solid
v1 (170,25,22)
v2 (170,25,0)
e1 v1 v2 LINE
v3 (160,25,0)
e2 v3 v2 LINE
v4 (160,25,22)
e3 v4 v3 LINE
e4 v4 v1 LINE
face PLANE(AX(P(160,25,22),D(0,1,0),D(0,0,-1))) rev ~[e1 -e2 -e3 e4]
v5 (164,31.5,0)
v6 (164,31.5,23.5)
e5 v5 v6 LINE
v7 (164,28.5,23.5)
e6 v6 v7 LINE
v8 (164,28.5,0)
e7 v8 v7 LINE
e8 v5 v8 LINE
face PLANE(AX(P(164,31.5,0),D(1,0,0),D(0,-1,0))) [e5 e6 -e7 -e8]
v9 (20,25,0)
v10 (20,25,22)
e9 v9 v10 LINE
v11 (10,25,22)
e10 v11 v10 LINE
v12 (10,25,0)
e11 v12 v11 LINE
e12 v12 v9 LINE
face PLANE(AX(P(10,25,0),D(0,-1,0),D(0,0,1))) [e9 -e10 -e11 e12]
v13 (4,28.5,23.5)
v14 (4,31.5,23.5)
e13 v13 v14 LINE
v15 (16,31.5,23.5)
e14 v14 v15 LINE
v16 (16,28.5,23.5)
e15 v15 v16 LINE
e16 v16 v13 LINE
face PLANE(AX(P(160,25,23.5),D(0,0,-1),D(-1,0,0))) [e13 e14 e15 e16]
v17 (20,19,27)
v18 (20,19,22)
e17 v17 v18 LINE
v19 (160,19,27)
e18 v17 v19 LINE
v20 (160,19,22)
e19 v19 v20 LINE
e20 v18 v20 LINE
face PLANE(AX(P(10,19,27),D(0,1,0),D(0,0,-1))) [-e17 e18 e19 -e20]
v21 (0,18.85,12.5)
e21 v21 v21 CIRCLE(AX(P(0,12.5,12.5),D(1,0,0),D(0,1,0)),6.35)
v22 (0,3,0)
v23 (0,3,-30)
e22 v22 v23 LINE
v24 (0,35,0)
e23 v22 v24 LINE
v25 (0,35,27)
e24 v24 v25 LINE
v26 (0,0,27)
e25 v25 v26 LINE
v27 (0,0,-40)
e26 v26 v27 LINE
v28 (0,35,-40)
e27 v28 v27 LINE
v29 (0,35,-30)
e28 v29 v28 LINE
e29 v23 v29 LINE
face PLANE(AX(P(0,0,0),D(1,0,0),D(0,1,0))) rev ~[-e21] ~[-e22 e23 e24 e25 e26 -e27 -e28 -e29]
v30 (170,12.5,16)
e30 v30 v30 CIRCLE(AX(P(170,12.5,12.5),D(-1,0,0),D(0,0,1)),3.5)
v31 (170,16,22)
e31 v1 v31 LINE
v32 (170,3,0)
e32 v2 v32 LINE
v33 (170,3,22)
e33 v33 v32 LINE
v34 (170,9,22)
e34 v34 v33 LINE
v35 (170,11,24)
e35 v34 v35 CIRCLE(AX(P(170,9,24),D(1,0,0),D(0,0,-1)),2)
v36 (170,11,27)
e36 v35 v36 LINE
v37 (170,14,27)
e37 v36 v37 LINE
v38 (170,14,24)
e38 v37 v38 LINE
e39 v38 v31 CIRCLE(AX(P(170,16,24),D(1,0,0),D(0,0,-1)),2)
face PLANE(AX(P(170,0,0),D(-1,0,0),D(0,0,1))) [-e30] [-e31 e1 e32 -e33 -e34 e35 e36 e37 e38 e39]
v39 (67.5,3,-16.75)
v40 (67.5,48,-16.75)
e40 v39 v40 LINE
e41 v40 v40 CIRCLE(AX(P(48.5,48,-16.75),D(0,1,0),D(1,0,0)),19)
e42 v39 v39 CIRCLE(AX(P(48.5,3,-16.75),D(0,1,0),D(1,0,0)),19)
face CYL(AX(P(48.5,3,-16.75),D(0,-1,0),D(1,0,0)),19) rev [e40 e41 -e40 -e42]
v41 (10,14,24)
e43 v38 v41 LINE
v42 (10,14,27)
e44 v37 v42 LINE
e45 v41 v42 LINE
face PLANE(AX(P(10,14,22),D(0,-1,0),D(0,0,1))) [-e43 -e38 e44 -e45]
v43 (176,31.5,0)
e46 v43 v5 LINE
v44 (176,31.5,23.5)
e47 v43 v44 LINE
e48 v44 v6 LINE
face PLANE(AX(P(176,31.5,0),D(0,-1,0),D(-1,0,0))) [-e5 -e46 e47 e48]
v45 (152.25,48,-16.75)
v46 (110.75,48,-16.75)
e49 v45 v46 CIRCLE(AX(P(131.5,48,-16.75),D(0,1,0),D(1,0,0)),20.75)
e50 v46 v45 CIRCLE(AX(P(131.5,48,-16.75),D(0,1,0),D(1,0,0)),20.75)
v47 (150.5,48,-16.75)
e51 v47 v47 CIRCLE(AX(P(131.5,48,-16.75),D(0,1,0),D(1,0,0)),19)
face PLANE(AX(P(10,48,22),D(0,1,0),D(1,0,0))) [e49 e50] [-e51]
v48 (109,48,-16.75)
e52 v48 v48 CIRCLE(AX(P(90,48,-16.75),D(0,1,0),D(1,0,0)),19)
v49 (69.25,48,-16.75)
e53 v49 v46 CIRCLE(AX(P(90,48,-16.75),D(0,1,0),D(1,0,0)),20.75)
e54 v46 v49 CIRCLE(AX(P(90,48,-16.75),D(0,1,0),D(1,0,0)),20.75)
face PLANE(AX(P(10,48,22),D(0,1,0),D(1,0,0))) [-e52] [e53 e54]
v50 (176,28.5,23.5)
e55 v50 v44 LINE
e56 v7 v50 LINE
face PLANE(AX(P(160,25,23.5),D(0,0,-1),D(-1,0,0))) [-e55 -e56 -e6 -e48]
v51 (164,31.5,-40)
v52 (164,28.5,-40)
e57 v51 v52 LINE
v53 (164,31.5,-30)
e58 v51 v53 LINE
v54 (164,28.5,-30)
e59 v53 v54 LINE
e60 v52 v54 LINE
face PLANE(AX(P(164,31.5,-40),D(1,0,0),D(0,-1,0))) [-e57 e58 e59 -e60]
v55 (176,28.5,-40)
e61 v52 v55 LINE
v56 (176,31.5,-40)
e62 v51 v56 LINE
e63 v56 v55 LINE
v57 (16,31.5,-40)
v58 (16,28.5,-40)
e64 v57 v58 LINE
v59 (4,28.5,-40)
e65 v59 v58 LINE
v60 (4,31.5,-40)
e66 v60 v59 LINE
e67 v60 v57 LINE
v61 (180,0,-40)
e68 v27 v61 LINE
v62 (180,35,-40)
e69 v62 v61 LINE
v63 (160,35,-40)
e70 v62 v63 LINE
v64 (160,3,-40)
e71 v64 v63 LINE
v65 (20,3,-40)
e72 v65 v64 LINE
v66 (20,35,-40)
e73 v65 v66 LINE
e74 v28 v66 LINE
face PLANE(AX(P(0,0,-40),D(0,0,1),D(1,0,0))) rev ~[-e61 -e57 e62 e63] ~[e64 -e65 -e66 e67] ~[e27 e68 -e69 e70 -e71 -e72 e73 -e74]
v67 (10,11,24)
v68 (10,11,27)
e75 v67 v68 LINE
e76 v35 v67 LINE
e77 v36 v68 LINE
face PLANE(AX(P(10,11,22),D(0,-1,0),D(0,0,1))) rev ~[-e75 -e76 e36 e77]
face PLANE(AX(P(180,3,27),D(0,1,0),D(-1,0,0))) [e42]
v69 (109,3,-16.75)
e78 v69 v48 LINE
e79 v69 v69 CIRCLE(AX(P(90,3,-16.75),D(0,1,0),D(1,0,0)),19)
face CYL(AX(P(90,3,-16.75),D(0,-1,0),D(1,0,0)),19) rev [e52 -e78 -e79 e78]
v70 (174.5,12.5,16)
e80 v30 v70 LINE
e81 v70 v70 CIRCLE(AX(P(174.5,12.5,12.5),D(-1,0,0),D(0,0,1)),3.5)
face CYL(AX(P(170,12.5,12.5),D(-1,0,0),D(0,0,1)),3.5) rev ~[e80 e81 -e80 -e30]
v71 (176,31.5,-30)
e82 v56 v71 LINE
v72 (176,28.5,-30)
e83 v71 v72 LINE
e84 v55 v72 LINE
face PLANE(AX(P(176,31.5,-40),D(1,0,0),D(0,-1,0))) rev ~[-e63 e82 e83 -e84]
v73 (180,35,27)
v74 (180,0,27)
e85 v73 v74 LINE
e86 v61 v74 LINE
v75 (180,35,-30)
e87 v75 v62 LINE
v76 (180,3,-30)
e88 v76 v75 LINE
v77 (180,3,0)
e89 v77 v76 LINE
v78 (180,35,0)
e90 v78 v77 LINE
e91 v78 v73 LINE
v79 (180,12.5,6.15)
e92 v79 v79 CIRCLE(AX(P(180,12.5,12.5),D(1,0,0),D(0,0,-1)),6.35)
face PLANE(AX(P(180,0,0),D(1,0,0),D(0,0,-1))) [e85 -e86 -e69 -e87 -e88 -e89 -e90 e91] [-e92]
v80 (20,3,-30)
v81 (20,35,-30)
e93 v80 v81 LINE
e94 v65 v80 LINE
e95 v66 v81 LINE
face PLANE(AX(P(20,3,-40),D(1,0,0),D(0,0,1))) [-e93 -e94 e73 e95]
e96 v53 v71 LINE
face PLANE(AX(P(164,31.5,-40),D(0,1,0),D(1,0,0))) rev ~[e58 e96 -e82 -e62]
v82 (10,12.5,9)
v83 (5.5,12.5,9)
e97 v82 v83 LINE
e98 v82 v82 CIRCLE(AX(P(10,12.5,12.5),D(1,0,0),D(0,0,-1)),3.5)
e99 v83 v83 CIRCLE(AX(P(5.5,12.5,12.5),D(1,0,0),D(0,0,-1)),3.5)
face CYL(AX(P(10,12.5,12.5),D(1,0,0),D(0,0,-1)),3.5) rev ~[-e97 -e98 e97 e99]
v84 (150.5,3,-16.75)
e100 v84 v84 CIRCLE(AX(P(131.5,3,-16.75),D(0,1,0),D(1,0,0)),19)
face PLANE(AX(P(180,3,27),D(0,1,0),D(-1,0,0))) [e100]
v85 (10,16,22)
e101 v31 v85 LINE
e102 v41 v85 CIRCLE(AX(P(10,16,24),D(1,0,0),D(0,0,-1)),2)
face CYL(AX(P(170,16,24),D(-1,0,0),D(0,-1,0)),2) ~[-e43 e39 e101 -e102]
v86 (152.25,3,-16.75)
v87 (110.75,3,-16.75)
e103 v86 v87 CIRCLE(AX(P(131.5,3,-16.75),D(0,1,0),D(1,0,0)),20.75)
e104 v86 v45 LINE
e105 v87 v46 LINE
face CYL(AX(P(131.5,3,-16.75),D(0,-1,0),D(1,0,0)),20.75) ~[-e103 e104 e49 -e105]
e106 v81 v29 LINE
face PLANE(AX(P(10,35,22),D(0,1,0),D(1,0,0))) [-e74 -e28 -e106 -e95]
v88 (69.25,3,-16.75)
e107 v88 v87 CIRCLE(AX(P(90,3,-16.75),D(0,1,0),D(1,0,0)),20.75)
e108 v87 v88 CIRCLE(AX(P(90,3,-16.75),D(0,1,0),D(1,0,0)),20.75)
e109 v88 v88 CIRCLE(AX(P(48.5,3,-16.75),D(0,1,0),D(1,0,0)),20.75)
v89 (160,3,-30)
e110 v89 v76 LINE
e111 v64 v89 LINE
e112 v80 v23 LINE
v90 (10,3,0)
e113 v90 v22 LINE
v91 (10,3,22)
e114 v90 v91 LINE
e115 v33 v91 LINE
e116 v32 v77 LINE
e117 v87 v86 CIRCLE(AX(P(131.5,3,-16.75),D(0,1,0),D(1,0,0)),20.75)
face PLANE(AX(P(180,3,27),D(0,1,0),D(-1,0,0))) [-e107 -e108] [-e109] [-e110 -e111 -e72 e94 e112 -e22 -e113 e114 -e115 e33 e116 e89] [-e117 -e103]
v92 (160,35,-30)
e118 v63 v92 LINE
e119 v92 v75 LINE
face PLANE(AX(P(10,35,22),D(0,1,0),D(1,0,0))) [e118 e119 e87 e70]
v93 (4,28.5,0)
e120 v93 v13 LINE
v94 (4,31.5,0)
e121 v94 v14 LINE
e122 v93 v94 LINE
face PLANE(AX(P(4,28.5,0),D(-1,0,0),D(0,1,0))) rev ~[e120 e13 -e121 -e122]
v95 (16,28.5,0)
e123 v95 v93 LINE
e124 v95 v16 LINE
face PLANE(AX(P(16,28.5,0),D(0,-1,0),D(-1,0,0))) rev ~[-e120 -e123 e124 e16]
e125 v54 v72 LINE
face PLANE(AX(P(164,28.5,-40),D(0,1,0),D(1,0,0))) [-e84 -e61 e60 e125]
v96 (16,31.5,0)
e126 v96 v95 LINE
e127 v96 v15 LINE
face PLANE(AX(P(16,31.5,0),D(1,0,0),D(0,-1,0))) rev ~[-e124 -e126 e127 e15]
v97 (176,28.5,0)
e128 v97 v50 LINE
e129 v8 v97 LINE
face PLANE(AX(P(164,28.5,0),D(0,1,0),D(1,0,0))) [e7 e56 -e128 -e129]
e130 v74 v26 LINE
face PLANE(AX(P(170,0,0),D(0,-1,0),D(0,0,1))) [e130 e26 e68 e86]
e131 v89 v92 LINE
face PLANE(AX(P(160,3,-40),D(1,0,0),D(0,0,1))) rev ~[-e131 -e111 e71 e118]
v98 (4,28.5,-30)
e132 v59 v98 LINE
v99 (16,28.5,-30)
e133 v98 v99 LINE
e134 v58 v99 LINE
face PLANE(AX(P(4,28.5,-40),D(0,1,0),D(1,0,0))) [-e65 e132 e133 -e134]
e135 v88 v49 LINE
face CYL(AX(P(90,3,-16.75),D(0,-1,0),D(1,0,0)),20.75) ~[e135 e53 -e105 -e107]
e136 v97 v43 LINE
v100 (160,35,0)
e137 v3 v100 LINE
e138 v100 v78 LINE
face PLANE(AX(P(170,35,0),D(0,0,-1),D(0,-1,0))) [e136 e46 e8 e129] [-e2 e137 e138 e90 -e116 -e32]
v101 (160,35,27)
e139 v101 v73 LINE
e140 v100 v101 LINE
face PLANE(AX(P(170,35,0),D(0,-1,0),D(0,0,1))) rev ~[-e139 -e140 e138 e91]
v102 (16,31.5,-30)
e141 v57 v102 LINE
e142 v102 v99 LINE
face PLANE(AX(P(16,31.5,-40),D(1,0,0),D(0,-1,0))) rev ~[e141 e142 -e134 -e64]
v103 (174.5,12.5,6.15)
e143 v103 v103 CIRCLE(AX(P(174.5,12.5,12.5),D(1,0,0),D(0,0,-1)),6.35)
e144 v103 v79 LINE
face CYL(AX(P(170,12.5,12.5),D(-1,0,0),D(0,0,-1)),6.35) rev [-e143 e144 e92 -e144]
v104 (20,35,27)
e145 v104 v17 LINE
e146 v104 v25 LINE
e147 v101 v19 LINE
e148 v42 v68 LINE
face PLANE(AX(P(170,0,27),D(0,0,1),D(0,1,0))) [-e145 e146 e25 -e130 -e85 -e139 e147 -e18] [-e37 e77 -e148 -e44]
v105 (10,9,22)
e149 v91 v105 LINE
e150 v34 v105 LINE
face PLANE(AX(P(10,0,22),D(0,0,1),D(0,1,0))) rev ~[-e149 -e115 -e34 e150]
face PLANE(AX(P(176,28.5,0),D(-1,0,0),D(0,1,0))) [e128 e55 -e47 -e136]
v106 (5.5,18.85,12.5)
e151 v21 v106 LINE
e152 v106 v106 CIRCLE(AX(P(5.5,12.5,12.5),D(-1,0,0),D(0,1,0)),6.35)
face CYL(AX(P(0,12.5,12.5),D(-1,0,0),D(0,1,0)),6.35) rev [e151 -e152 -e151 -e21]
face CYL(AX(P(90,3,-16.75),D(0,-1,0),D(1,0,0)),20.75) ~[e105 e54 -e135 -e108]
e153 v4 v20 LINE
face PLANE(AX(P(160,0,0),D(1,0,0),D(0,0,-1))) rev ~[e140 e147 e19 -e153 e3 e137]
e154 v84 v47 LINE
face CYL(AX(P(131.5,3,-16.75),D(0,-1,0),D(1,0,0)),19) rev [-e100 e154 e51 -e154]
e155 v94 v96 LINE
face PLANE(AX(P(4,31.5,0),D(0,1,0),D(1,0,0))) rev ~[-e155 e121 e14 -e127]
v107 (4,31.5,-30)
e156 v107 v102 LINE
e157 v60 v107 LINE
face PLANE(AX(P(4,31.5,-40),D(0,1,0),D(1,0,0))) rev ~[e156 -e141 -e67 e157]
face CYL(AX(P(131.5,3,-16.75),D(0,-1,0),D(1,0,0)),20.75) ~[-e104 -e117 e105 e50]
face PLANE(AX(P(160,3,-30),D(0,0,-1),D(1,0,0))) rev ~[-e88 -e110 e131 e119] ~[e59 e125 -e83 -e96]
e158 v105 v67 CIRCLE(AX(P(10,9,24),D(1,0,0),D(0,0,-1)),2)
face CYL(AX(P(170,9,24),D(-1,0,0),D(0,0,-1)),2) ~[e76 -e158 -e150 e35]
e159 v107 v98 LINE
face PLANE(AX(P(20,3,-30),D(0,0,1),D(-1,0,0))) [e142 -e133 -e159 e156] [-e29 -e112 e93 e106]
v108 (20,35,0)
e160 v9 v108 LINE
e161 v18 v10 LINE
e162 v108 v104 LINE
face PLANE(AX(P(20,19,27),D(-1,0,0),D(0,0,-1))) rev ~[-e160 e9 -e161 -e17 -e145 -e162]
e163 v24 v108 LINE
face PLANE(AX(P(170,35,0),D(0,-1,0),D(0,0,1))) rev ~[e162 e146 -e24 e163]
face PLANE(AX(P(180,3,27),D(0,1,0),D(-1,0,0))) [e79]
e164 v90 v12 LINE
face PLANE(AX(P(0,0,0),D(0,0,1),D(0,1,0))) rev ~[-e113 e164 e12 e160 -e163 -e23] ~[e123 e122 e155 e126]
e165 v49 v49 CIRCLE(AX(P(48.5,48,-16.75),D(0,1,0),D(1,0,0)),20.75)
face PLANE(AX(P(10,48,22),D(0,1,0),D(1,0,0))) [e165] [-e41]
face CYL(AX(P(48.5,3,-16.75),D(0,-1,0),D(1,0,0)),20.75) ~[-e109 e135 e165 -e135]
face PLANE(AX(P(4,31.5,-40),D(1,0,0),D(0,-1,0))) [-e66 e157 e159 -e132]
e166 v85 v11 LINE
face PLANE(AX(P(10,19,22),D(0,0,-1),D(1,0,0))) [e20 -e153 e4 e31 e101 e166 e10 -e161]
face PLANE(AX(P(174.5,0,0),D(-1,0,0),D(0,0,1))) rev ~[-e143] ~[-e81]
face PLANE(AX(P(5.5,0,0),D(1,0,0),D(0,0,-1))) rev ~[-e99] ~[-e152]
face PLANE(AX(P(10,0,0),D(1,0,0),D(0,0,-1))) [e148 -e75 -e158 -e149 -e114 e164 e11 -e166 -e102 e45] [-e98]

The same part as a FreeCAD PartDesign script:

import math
import FreeCAD as App
import Part
import Sketcher
from FreeCAD import Vector
Q = App.Units.Quantity


def edges_at(feature, points):
    """Names of the edges that pass closest to the given points."""
    edges = feature.Shape.Edges
    near = lambda p: min(range(len(edges)), key=lambda i: edges[i].distToShape(Part.Vertex(*p))[0])
    return sorted({f"Edge{near(p) + 1}" for p in points})


def add_polygon(sketch, points):
    """Adds a closed chain of lines whose ends are joined by coincident constraints."""
    first, n = sketch.GeometryCount, len(points)
    for a, b in zip(points, points[1:] + points[:1]):
        sketch.addGeometry(Part.LineSegment(App.Vector(*a, 0), App.Vector(*b, 0)), False)
    for i in range(n):
        sketch.addConstraint(Sketcher.Constraint("Coincident", first + i, 2, first + (i + 1) % n, 1))

doc = App.newDocument("Part")
params = doc.addObject("Spreadsheet::Sheet", "Params")
for row, (alias, value) in enumerate([
    ("sketch1_diameter", "12.7 mm"),
    ("sketch1_width", "35 mm"),
    ("sketch1_height", "27 mm"),
    ("pad1_length", "10 mm"),
    ("sketch2_width", "10 mm"),
    ("sketch2_height", "27 mm"),
    ("pad2_length", "10 mm"),
    ("sketch3_width", "5 mm"),
    ("sketch3_width2", "11 mm"),
    ("pad3_length", "150 mm"),
    ("sketch4_width", "10 mm"),
    ("sketch4_height", "5 mm"),
    ("pad4_length", "7.5 mm"),
    ("sketch5_width", "21 mm"),
    ("sketch5_width2", "11 mm"),
    ("sketch5_height", "5 mm"),
    ("sketch5_height2", "22 mm"),
    ("pad5_length", "10 mm"),
    ("sketch6_diameter", "12.7 mm"),
    ("sketch6_width", "35 mm"),
    ("sketch6_height", "27 mm"),
    ("pad6_length", "10 mm"),
    ("fillet_radius", "2 mm"),
    ("sketch7_width", "3 mm"),
    ("sketch7_height", "14 mm"),
    ("pad7_length", "140 mm"),
    ("sketch8_width", "12 mm"),
    ("sketch8_height", "3 mm"),
    ("pocket1_length", "23.5 mm"),
    ("sketch9_diameter", "7 mm"),
    ("sketch9_diameter2", "12.7 mm"),
    ("pad8_length", "4.5 mm"),
    ("sketch10_diameter", "7 mm"),
    ("sketch10_diameter2", "12.7 mm"),
    ("pad9_length", "4.5 mm"),
    ("sketch11_height", "3 mm"),
    ("sketch11_width", "180 mm"),
    ("pad10_length", "67 mm"),
    ("sketch12_diameter", "38 mm"),
    ("sketch12_diameter2", "40 mm"),
    ("pad11_length", "30 mm"),
    ("sketch13_height", "10 mm"),
    ("sketch13_width", "20 mm"),
    ("pad12_length", "32 mm"),
    ("sketch14_width", "12 mm"),
    ("sketch14_height", "3 mm"),
    ("pocket2_length", "10 mm"),
    ("pocket3_length", "30 mm"),
    ("sketch16_diameter", "38 mm"),
    ("sketch16_diameter2", "41.5 mm"),
    ("pad13_length", "45 mm"),
    ("sketch17_width", "140 mm"),
    ("sketch17_height", "14 mm"),
    ("pocket4_length", "5 mm"),
], start=1):
    params.set(f"A{row}", alias)
    params.set(f"B{row}", "=" + value)
    params.setAlias(f"B{row}", alias)

body = doc.addObject("PartDesign::Body", "Body")

sketch1 = body.newObject("Sketcher::SketchObject", "Sketch")
sketch1.AttachmentSupport = (doc.getObject("YZ_Plane"), [""])
sketch1.MapMode = "FlatFace"
add_polygon(sketch1, [(0, 27), (0, 0), (35, 0), (35, 27)])
sketch1.addGeometry(Part.Circle(Vector(12, 12, 0), Vector(0, 0, 1), 6), False)
sketch1.addConstraint(Sketcher.Constraint("Vertical", 0))
sketch1.addConstraint(Sketcher.Constraint("Horizontal", 1))
sketch1.addConstraint(Sketcher.Constraint("Vertical", 2))
sketch1.addConstraint(Sketcher.Constraint("Horizontal", 3))
sketch1.addConstraint(Sketcher.Constraint("Coincident", 0, 2, -1, 1))
sketch1.addConstraint(Sketcher.Constraint("Diameter", 4, Q("12.7 mm")))
sketch1.addConstraint(Sketcher.Constraint("DistanceX", 1, 1, 1, 2, Q("35 mm")))
sketch1.addConstraint(Sketcher.Constraint("DistanceY", 0, 2, 0, 1, Q("27 mm")))
sketch1.addConstraint(Sketcher.Constraint("DistanceX", -1, 1, 4, 3, Q("12.5 mm")))
sketch1.addConstraint(Sketcher.Constraint("DistanceY", -1, 1, 4, 3, Q("12.5 mm")))
sketch1.setExpression("Constraints[9]", "Params.sketch1_diameter")
sketch1.setExpression("Constraints[10]", "Params.sketch1_width")
sketch1.setExpression("Constraints[11]", "Params.sketch1_height")
pad1 = body.newObject("PartDesign::Pad", "Pad")
pad1.Profile = sketch1
pad1.setExpression("Length", "Params.pad1_length")

sketch2 = body.newObject("Sketcher::SketchObject", "Sketch001")
sketch2.AttachmentSupport = (doc.getObject("YZ_Plane"), [""])
sketch2.MapMode = "FlatFace"
sketch2.AttachmentOffset = App.Placement(Vector(0, 0, 10), App.Rotation())
add_polygon(sketch2, [(25, 0), (35, 0), (35, 27), (25, 27)])
sketch2.addConstraint(Sketcher.Constraint("Horizontal", 0))
sketch2.addConstraint(Sketcher.Constraint("Vertical", 1))
sketch2.addConstraint(Sketcher.Constraint("Horizontal", 2))
sketch2.addConstraint(Sketcher.Constraint("Vertical", 3))
sketch2.addConstraint(Sketcher.Constraint("PointOnObject", 0, 2, -1))
sketch2.addConstraint(Sketcher.Constraint("DistanceX", 0, 1, 0, 2, Q("10 mm")))
sketch2.addConstraint(Sketcher.Constraint("DistanceY", 1, 1, 1, 2, Q("27 mm")))
sketch2.addConstraint(Sketcher.Constraint("DistanceX", -1, 1, 0, 2, Q("35 mm")))
sketch2.setExpression("Constraints[9]", "Params.sketch2_width")
sketch2.setExpression("Constraints[10]", "Params.sketch2_height")
pad2 = body.newObject("PartDesign::Pad", "Pad001")
pad2.Profile = sketch2
pad2.setExpression("Length", "Params.pad2_length")

sketch3 = body.newObject("Sketcher::SketchObject", "Sketch002")
sketch3.AttachmentSupport = (doc.getObject("YZ_Plane"), [""])
sketch3.MapMode = "FlatFace"
sketch3.AttachmentOffset = App.Placement(Vector(0, 0, 10), App.Rotation())
add_polygon(sketch3, [(19, 22), (19, 27), (14, 27), (14, 22)])
add_polygon(sketch3, [(11, 22), (11, 27), (0, 27), (0, 22)])
sketch3.addConstraint(Sketcher.Constraint("Vertical", 0))
sketch3.addConstraint(Sketcher.Constraint("Horizontal", 1))
sketch3.addConstraint(Sketcher.Constraint("Vertical", 2))
sketch3.addConstraint(Sketcher.Constraint("Horizontal", 3))
sketch3.addConstraint(Sketcher.Constraint("Vertical", 4))
sketch3.addConstraint(Sketcher.Constraint("Horizontal", 5))
sketch3.addConstraint(Sketcher.Constraint("Vertical", 6))
sketch3.addConstraint(Sketcher.Constraint("Horizontal", 7))
sketch3.addConstraint(Sketcher.Constraint("PointOnObject", 5, 2, -2))
sketch3.addConstraint(Sketcher.Constraint("Horizontal", 1, 2, 4, 2))
sketch3.addConstraint(Sketcher.Constraint("Horizontal", 3, 2, 6, 2))
sketch3.addConstraint(Sketcher.Constraint("Equal", 3, 0))
sketch3.addConstraint(Sketcher.Constraint("DistanceX", 1, 2, 1, 1, Q("5 mm")))
sketch3.addConstraint(Sketcher.Constraint("DistanceX", 5, 2, 5, 1, Q("11 mm")))
sketch3.addConstraint(Sketcher.Constraint("DistanceX", -1, 1, 0, 2, Q("19 mm")))
sketch3.addConstraint(Sketcher.Constraint("DistanceY", -1, 1, 0, 2, Q("27 mm")))
sketch3.setExpression("Constraints[20]", "Params.sketch3_width")
sketch3.setExpression("Constraints[21]", "Params.sketch3_width2")
pad3 = body.newObject("PartDesign::Pad", "Pad002")
pad3.Profile = sketch3
pad3.setExpression("Length", "Params.pad3_length")

sketch4 = body.newObject("Sketcher::SketchObject", "Sketch003")
sketch4.AttachmentSupport = (doc.getObject("XZ_Plane"), [""])
sketch4.MapMode = "FlatFace"
sketch4.AttachmentOffset = App.Placement(Vector(0, 0, -19), App.Rotation())
add_polygon(sketch4, [(10, 22), (10, 27), (20, 27), (20, 22)])
sketch4.addConstraint(Sketcher.Constraint("Vertical", 0))
sketch4.addConstraint(Sketcher.Constraint("Horizontal", 1))
sketch4.addConstraint(Sketcher.Constraint("Vertical", 2))
sketch4.addConstraint(Sketcher.Constraint("Horizontal", 3))
sketch4.addConstraint(Sketcher.Constraint("DistanceX", 1, 1, 1, 2, Q("10 mm")))
sketch4.addConstraint(Sketcher.Constraint("DistanceX", -1, 1, 0, 2, Q("10 mm")))
sketch4.addConstraint(Sketcher.Constraint("DistanceY", 0, 1, 0, 2, Q("5 mm")))
sketch4.addConstraint(Sketcher.Constraint("DistanceY", -1, 1, 0, 2, Q("27 mm")))
sketch4.setExpression("Constraints[8]", "Params.sketch4_width")
sketch4.setExpression("Constraints[10]", "Params.sketch4_height")
pad4 = body.newObject("PartDesign::Pad", "Pad003")
pad4.Profile = sketch4
pad4.setExpression("Length", "Params.pad4_length")
pad4.Reversed = True

sketch5 = body.newObject("Sketcher::SketchObject", "Sketch004")
sketch5.AttachmentSupport = (doc.getObject("YZ_Plane"), [""])
sketch5.MapMode = "FlatFace"
sketch5.AttachmentOffset = App.Placement(Vector(0, 0, 160), App.Rotation())
add_polygon(sketch5, [(35, 27), (14, 27), (14, 22), (25, 22), (25, 0), (35, 0)])
add_polygon(sketch5, [(0, 22), (11, 22), (11, 27), (0, 27)])
sketch5.addConstraint(Sketcher.Constraint("Horizontal", 0))
sketch5.addConstraint(Sketcher.Constraint("Vertical", 1))
sketch5.addConstraint(Sketcher.Constraint("Horizontal", 2))
sketch5.addConstraint(Sketcher.Constraint("Vertical", 3))
sketch5.addConstraint(Sketcher.Constraint("Horizontal", 4))
sketch5.addConstraint(Sketcher.Constraint("Vertical", 5))
sketch5.addConstraint(Sketcher.Constraint("Horizontal", 6))
sketch5.addConstraint(Sketcher.Constraint("Vertical", 7))
sketch5.addConstraint(Sketcher.Constraint("Horizontal", 8))
sketch5.addConstraint(Sketcher.Constraint("Vertical", 9))
sketch5.addConstraint(Sketcher.Constraint("PointOnObject", 3, 2, -1))
sketch5.addConstraint(Sketcher.Constraint("PointOnObject", 8, 2, -2))
sketch5.addConstraint(Sketcher.Constraint("Horizontal", 2, 2, 6, 2))
sketch5.addConstraint(Sketcher.Constraint("Horizontal", 5, 2, 7, 2))
sketch5.addConstraint(Sketcher.Constraint("Equal", 2, 6))
sketch5.addConstraint(Sketcher.Constraint("DistanceX", 0, 2, 0, 1, Q("21 mm")))
sketch5.addConstraint(Sketcher.Constraint("DistanceX", 2, 1, 2, 2, Q("11 mm")))
sketch5.addConstraint(Sketcher.Constraint("DistanceY", 1, 2, 1, 1, Q("5 mm")))
sketch5.addConstraint(Sketcher.Constraint("DistanceY", 3, 2, 3, 1, Q("22 mm")))
sketch5.addConstraint(Sketcher.Constraint("DistanceX", -1, 1, 0, 2, Q("14 mm")))
sketch5.setExpression("Constraints[25]", "Params.sketch5_width")
sketch5.setExpression("Constraints[26]", "Params.sketch5_width2")
sketch5.setExpression("Constraints[27]", "Params.sketch5_height")
sketch5.setExpression("Constraints[28]", "Params.sketch5_height2")
pad5 = body.newObject("PartDesign::Pad", "Pad004")
pad5.Profile = sketch5
pad5.setExpression("Length", "Params.pad5_length")

sketch6 = body.newObject("Sketcher::SketchObject", "Sketch005")
sketch6.AttachmentSupport = (doc.getObject("YZ_Plane"), [""])
sketch6.MapMode = "FlatFace"
sketch6.AttachmentOffset = App.Placement(Vector(0, 0, 170), App.Rotation())
add_polygon(sketch6, [(0, 0), (35, 0), (35, 27), (0, 27)])
sketch6.addGeometry(Part.Circle(Vector(12, 12, 0), Vector(0, 0, 1), 6), False)
sketch6.addConstraint(Sketcher.Constraint("Horizontal", 0))
sketch6.addConstraint(Sketcher.Constraint("Vertical", 1))
sketch6.addConstraint(Sketcher.Constraint("Horizontal", 2))
sketch6.addConstraint(Sketcher.Constraint("Vertical", 3))
sketch6.addConstraint(Sketcher.Constraint("Coincident", 3, 2, -1, 1))
sketch6.addConstraint(Sketcher.Constraint("Diameter", 4, Q("12.7 mm")))
sketch6.addConstraint(Sketcher.Constraint("DistanceX", 0, 1, 0, 2, Q("35 mm")))
sketch6.addConstraint(Sketcher.Constraint("DistanceY", 1, 1, 1, 2, Q("27 mm")))
sketch6.addConstraint(Sketcher.Constraint("DistanceX", -1, 1, 4, 3, Q("12.5 mm")))
sketch6.addConstraint(Sketcher.Constraint("DistanceY", -1, 1, 4, 3, Q("12.5 mm")))
sketch6.setExpression("Constraints[9]", "Params.sketch6_diameter")
sketch6.setExpression("Constraints[10]", "Params.sketch6_width")
sketch6.setExpression("Constraints[11]", "Params.sketch6_height")
pad6 = body.newObject("PartDesign::Pad", "Pad005")
pad6.Profile = sketch6
pad6.setExpression("Length", "Params.pad6_length")
doc.recompute()

fillet = body.newObject("PartDesign::Fillet", "Fillet")
fillet.Base = (pad6, edges_at(pad6, [(90, 11, 22), (90, 14, 22)]))
fillet.setExpression("Radius", "Params.fillet_radius")

sketch7 = body.newObject("Sketcher::SketchObject", "Sketch006")
sketch7.AttachmentSupport = (doc.getObject("YZ_Plane"), [""])
sketch7.MapMode = "FlatFace"
sketch7.AttachmentOffset = App.Placement(Vector(0, 0, 20), App.Rotation())
add_polygon(sketch7, [(32, 6.5), (35, 6.5), (35, 20.5), (32, 20.5)])
sketch7.addConstraint(Sketcher.Constraint("Horizontal", 0))
sketch7.addConstraint(Sketcher.Constraint("Vertical", 1))
sketch7.addConstraint(Sketcher.Constraint("Horizontal", 2))
sketch7.addConstraint(Sketcher.Constraint("Vertical", 3))
sketch7.addConstraint(Sketcher.Constraint("DistanceX", 0, 1, 0, 2, Q("3 mm")))
sketch7.addConstraint(Sketcher.Constraint("DistanceY", 1, 1, 1, 2, Q("14 mm")))
sketch7.addConstraint(Sketcher.Constraint("DistanceX", -1, 1, 0, 2, Q("35 mm")))
sketch7.addConstraint(Sketcher.Constraint("DistanceY", -1, 1, 0, 2, Q("6.5 mm")))
sketch7.setExpression("Constraints[8]", "Params.sketch7_width")
sketch7.setExpression("Constraints[9]", "Params.sketch7_height")
pad7 = body.newObject("PartDesign::Pad", "Pad006")
pad7.Profile = sketch7
pad7.setExpression("Length", "Params.pad7_length")

sketch8 = body.newObject("Sketcher::SketchObject", "Sketch007")
sketch8.AttachmentSupport = (doc.getObject("XY_Plane"), [""])
sketch8.MapMode = "FlatFace"
add_polygon(sketch8, [(176, 28.5), (164, 28.5), (164, 31.5), (176, 31.5)])
add_polygon(sketch8, [(4, 28.5), (4, 31.5), (16, 31.5), (16, 28.5)])
sketch8.addConstraint(Sketcher.Constraint("Horizontal", 0))
sketch8.addConstraint(Sketcher.Constraint("Vertical", 1))
sketch8.addConstraint(Sketcher.Constraint("Horizontal", 2))
sketch8.addConstraint(Sketcher.Constraint("Vertical", 3))
sketch8.addConstraint(Sketcher.Constraint("Vertical", 4))
sketch8.addConstraint(Sketcher.Constraint("Horizontal", 5))
sketch8.addConstraint(Sketcher.Constraint("Vertical", 6))
sketch8.addConstraint(Sketcher.Constraint("Horizontal", 7))
sketch8.addConstraint(Sketcher.Constraint("Horizontal", 2, 2, 4, 2))
sketch8.addConstraint(Sketcher.Constraint("Horizontal", 3, 2, 6, 2))
sketch8.addConstraint(Sketcher.Constraint("Equal", 2, 5))
sketch8.addConstraint(Sketcher.Constraint("DistanceX", 0, 2, 0, 1, Q("12 mm")))
sketch8.addConstraint(Sketcher.Constraint("DistanceY", 1, 1, 1, 2, Q("3 mm")))
sketch8.addConstraint(Sketcher.Constraint("DistanceX", -1, 1, 0, 2, Q("164 mm")))
sketch8.addConstraint(Sketcher.Constraint("DistanceX", -1, 1, 4, 2, Q("4 mm")))
sketch8.addConstraint(Sketcher.Constraint("DistanceY", -1, 1, 0, 2, Q("28.5 mm")))
sketch8.setExpression("Constraints[19]", "Params.sketch8_width")
sketch8.setExpression("Constraints[20]", "Params.sketch8_height")
pocket1 = body.newObject("PartDesign::Pocket", "Pocket")
pocket1.Profile = sketch8
pocket1.setExpression("Length", "Params.pocket1_length")
pocket1.Reversed = True

sketch9 = body.newObject("Sketcher::SketchObject", "Sketch008")
sketch9.AttachmentSupport = (doc.getObject("YZ_Plane"), [""])
sketch9.MapMode = "FlatFace"
sketch9.AttachmentOffset = App.Placement(Vector(0, 0, 170), App.Rotation())
sketch9.addGeometry(Part.Circle(Vector(12.5, 12.5, 0), Vector(0, 0, 1), 6.3), False)
sketch9.addGeometry(Part.Circle(Vector(12.5, 12.5, 0), Vector(0, 0, 1), 3.5), False)
sketch9.addConstraint(Sketcher.Constraint("Coincident", 1, 3, 0, 3))
sketch9.addConstraint(Sketcher.Constraint("Diameter", 1, Q("7 mm")))
sketch9.addConstraint(Sketcher.Constraint("Diameter", 0, Q("12.7 mm")))
sketch9.addConstraint(Sketcher.Constraint("DistanceX", -1, 1, 0, 3, Q("12.5 mm")))
sketch9.addConstraint(Sketcher.Constraint("DistanceY", -1, 1, 0, 3, Q("12.5 mm")))
sketch9.setExpression("Constraints[1]", "Params.sketch9_diameter")
sketch9.setExpression("Constraints[2]", "Params.sketch9_diameter2")
pad8 = body.newObject("PartDesign::Pad", "Pad007")
pad8.Profile = sketch9
pad8.setExpression("Length", "Params.pad8_length")

sketch10 = body.newObject("Sketcher::SketchObject", "Sketch009")
sketch10.AttachmentSupport = (doc.getObject("YZ_Plane"), [""])
sketch10.MapMode = "FlatFace"
sketch10.AttachmentOffset = App.Placement(Vector(0, 0, 10), App.Rotation())
sketch10.addGeometry(Part.Circle(Vector(12.5, 12.5, 0), Vector(0, 0, 1), 6.3), False)
sketch10.addGeometry(Part.Circle(Vector(12.5, 12.5, 0), Vector(0, 0, 1), 3.5), False)
sketch10.addConstraint(Sketcher.Constraint("Coincident", 1, 3, 0, 3))
sketch10.addConstraint(Sketcher.Constraint("Diameter", 1, Q("7 mm")))
sketch10.addConstraint(Sketcher.Constraint("Diameter", 0, Q("12.7 mm")))
sketch10.addConstraint(Sketcher.Constraint("DistanceX", -1, 1, 0, 3, Q("12.5 mm")))
sketch10.addConstraint(Sketcher.Constraint("DistanceY", -1, 1, 0, 3, Q("12.5 mm")))
sketch10.setExpression("Constraints[1]", "Params.sketch10_diameter")
sketch10.setExpression("Constraints[2]", "Params.sketch10_diameter2")
pad9 = body.newObject("PartDesign::Pad", "Pad008")
pad9.Profile = sketch10
pad9.setExpression("Length", "Params.pad9_length")
pad9.Reversed = True

sketch11 = body.newObject("Sketcher::SketchObject", "Sketch010")
sketch11.AttachmentSupport = (doc.getObject("XY_Plane"), [""])
sketch11.MapMode = "FlatFace"
sketch11.AttachmentOffset = App.Placement(Vector(0, 0, 27), App.Rotation())
add_polygon(sketch11, [(180, 3), (0, 3), (0, 0), (180, 0)])
sketch11.addConstraint(Sketcher.Constraint("Horizontal", 0))
sketch11.addConstraint(Sketcher.Constraint("Vertical", 1))
sketch11.addConstraint(Sketcher.Constraint("Horizontal", 2))
sketch11.addConstraint(Sketcher.Constraint("Vertical", 3))
sketch11.addConstraint(Sketcher.Constraint("Coincident", 1, 2, -1, 1))
sketch11.addConstraint(Sketcher.Constraint("DistanceY", 1, 2, 1, 1, Q("3 mm")))
sketch11.addConstraint(Sketcher.Constraint("DistanceX", 0, 2, 0, 1, Q("180 mm")))
sketch11.setExpression("Constraints[9]", "Params.sketch11_height")
sketch11.setExpression("Constraints[10]", "Params.sketch11_width")
pad10 = body.newObject("PartDesign::Pad", "Pad009")
pad10.Profile = sketch11
pad10.setExpression("Length", "Params.pad10_length")
pad10.Reversed = True

sketch12 = body.newObject("Sketcher::SketchObject", "Sketch011")
sketch12.AttachmentSupport = (doc.getObject("XZ_Plane"), [""])
sketch12.MapMode = "FlatFace"
sketch12.AttachmentOffset = App.Placement(Vector(0, 0, -3), App.Rotation())
sketch12.addGeometry(Part.ArcOfCircle(Part.Circle(Vector(90, -20, 0), Vector(0, 0, 1), 20), math.radians(0), math.radians(180)), False)
sketch12.addGeometry(Part.ArcOfCircle(Part.Circle(Vector(90, -20, 0), Vector(0, 0, 1), 20), math.radians(180), math.radians(360)), False)
sketch12.addGeometry(Part.Circle(Vector(90, -20, 0), Vector(0, 0, 1), 19), False)
sketch12.addGeometry(Part.Circle(Vector(50, -20, 0), Vector(0, 0, 1), 20), False)
sketch12.addGeometry(Part.Circle(Vector(50, -20, 0), Vector(0, 0, 1), 19), False)
sketch12.addGeometry(Part.Circle(Vector(130, -20, 0), Vector(0, 0, 1), 20), False)
sketch12.addGeometry(Part.Circle(Vector(130, -20, 0), Vector(0, 0, 1), 19), False)
sketch12.addConstraint(Sketcher.Constraint("Tangent", 0, 1, 1, 2))
sketch12.addConstraint(Sketcher.Constraint("Coincident", 1, 1, 0, 2))
sketch12.addConstraint(Sketcher.Constraint("Coincident", 2, 3, 0, 3))
sketch12.addConstraint(Sketcher.Constraint("Coincident", 4, 3, 3, 3))
sketch12.addConstraint(Sketcher.Constraint("Coincident", 6, 3, 5, 3))
sketch12.addConstraint(Sketcher.Constraint("Equal", 1, 3))
sketch12.addConstraint(Sketcher.Constraint("Equal", 2, 4))
sketch12.addConstraint(Sketcher.Constraint("Equal", 3, 5))
sketch12.addConstraint(Sketcher.Constraint("Equal", 4, 6))
sketch12.addConstraint(Sketcher.Constraint("Horizontal", 2, 3, 3, 3))
sketch12.addConstraint(Sketcher.Constraint("Horizontal", 4, 3, 5, 3))
sketch12.addConstraint(Sketcher.Constraint("Horizontal", 6, 3, 0, 1))
sketch12.addConstraint(Sketcher.Constraint("Horizontal", 0, 1, 1, 1))
sketch12.addConstraint(Sketcher.Constraint("Diameter", 2, Q("38 mm")))
sketch12.addConstraint(Sketcher.Constraint("Diameter", 3, Q("40 mm")))
sketch12.addConstraint(Sketcher.Constraint("DistanceX", -1, 1, 0, 3, Q("90 mm")))
sketch12.addConstraint(Sketcher.Constraint("DistanceY", 0, 3, -1, 1, Q("20 mm")))
sketch12.addConstraint(Sketcher.Constraint("DistanceX", -1, 1, 3, 3, Q("50 mm")))
sketch12.addConstraint(Sketcher.Constraint("DistanceX", -1, 1, 5, 3, Q("130 mm")))
sketch12.setExpression("Constraints[13]", "Params.sketch12_diameter")
sketch12.setExpression("Constraints[14]", "Params.sketch12_diameter2")
pad11 = body.newObject("PartDesign::Pad", "Pad010")
pad11.Profile = sketch12
pad11.setExpression("Length", "Params.pad11_length")
pad11.Reversed = True

sketch13 = body.newObject("Sketcher::SketchObject", "Sketch012")
sketch13.AttachmentSupport = (doc.getObject("XZ_Plane"), [""])
sketch13.MapMode = "FlatFace"
sketch13.AttachmentOffset = App.Placement(Vector(0, 0, -3), App.Rotation())
add_polygon(sketch13, [(180, -40), (160, -40), (160, -30), (180, -30)])
add_polygon(sketch13, [(0, -40), (0, -30), (20, -30), (20, -40)])
sketch13.addConstraint(Sketcher.Constraint("Horizontal", 0))
sketch13.addConstraint(Sketcher.Constraint("Vertical", 1))
sketch13.addConstraint(Sketcher.Constraint("Horizontal", 2))
sketch13.addConstraint(Sketcher.Constraint("Vertical", 3))
sketch13.addConstraint(Sketcher.Constraint("Vertical", 4))
sketch13.addConstraint(Sketcher.Constraint("Horizontal", 5))
sketch13.addConstraint(Sketcher.Constraint("Vertical", 6))
sketch13.addConstraint(Sketcher.Constraint("Horizontal", 7))
sketch13.addConstraint(Sketcher.Constraint("PointOnObject", 4, 2, -2))
sketch13.addConstraint(Sketcher.Constraint("Horizontal", 2, 2, 4, 2))
sketch13.addConstraint(Sketcher.Constraint("Horizontal", 3, 2, 6, 2))
sketch13.addConstraint(Sketcher.Constraint("Equal", 2, 5))
sketch13.addConstraint(Sketcher.Constraint("DistanceY", 1, 1, 1, 2, Q("10 mm")))
sketch13.addConstraint(Sketcher.Constraint("DistanceX", 0, 2, 0, 1, Q("20 mm")))
sketch13.addConstraint(Sketcher.Constraint("DistanceX", -1, 1, 0, 2, Q("160 mm")))
sketch13.addConstraint(Sketcher.Constraint("DistanceY", 0, 2, -1, 1, Q("40 mm")))
sketch13.setExpression("Constraints[20]", "Params.sketch13_height")
sketch13.setExpression("Constraints[21]", "Params.sketch13_width")
pad12 = body.newObject("PartDesign::Pad", "Pad011")
pad12.Profile = sketch13
pad12.setExpression("Length", "Params.pad12_length")
pad12.Reversed = True

sketch14 = body.newObject("Sketcher::SketchObject", "Sketch013")
sketch14.AttachmentSupport = (doc.getObject("XY_Plane"), [""])
sketch14.MapMode = "FlatFace"
sketch14.AttachmentOffset = App.Placement(Vector(0, 0, -40), App.Rotation())
add_polygon(sketch14, [(16, 28.5), (4, 28.5), (4, 31.5), (16, 31.5)])
add_polygon(sketch14, [(176, 28.5), (164, 28.5), (164, 31.5), (176, 31.5)])
sketch14.addConstraint(Sketcher.Constraint("Horizontal", 0))
sketch14.addConstraint(Sketcher.Constraint("Vertical", 1))
sketch14.addConstraint(Sketcher.Constraint("Horizontal", 2))
sketch14.addConstraint(Sketcher.Constraint("Vertical", 3))
sketch14.addConstraint(Sketcher.Constraint("Horizontal", 4))
sketch14.addConstraint(Sketcher.Constraint("Vertical", 5))
sketch14.addConstraint(Sketcher.Constraint("Horizontal", 6))
sketch14.addConstraint(Sketcher.Constraint("Vertical", 7))
sketch14.addConstraint(Sketcher.Constraint("Horizontal", 3, 2, 4, 2))
sketch14.addConstraint(Sketcher.Constraint("Horizontal", 2, 2, 5, 2))
sketch14.addConstraint(Sketcher.Constraint("Equal", 2, 4))
sketch14.addConstraint(Sketcher.Constraint("DistanceX", 0, 2, 0, 1, Q("12 mm")))
sketch14.addConstraint(Sketcher.Constraint("DistanceY", 1, 1, 1, 2, Q("3 mm")))
sketch14.addConstraint(Sketcher.Constraint("DistanceX", -1, 1, 0, 2, Q("4 mm")))
sketch14.addConstraint(Sketcher.Constraint("DistanceX", -1, 1, 4, 2, Q("164 mm")))
sketch14.addConstraint(Sketcher.Constraint("DistanceY", -1, 1, 0, 2, Q("28.5 mm")))
sketch14.setExpression("Constraints[19]", "Params.sketch14_width")
sketch14.setExpression("Constraints[20]", "Params.sketch14_height")
pocket2 = body.newObject("PartDesign::Pocket", "Pocket001")
pocket2.Profile = sketch14
pocket2.setExpression("Length", "Params.pocket2_length")
pocket2.Reversed = True

sketch15 = body.newObject("Sketcher::SketchObject", "Sketch014")
sketch15.AttachmentSupport = (doc.getObject("XZ_Plane"), [""])
sketch15.MapMode = "FlatFace"
sketch15.AttachmentOffset = App.Placement(Vector(0, 0, -33), App.Rotation())
add_polygon(sketch15, [(26, 3), (157, 3), (157, -46), (26, -46)])
sketch15.addConstraint(Sketcher.Constraint("Horizontal", 0))
sketch15.addConstraint(Sketcher.Constraint("Vertical", 1))
sketch15.addConstraint(Sketcher.Constraint("Horizontal", 2))
sketch15.addConstraint(Sketcher.Constraint("Vertical", 3))
sketch15.addConstraint(Sketcher.Constraint("DistanceX", 0, 1, 0, 2, Q("131.1087 mm")))
sketch15.addConstraint(Sketcher.Constraint("DistanceY", 1, 2, 1, 1, Q("48.8594 mm")))
sketch15.addConstraint(Sketcher.Constraint("DistanceX", -1, 1, 0, 2, Q("157.296 mm")))
sketch15.addConstraint(Sketcher.Constraint("DistanceY", 1, 2, -1, 1, Q("45.727 mm")))
pocket3 = body.newObject("PartDesign::Pocket", "Pocket002")
pocket3.Profile = sketch15
pocket3.setExpression("Length", "Params.pocket3_length")
pocket3.Reversed = True

sketch16 = body.newObject("Sketcher::SketchObject", "Sketch015")
sketch16.AttachmentSupport = (doc.getObject("XZ_Plane"), [""])
sketch16.MapMode = "FlatFace"
sketch16.AttachmentOffset = App.Placement(Vector(0, 0, -3), App.Rotation())
sketch16.addGeometry(Part.ArcOfCircle(Part.Circle(Vector(90, -17, 0), Vector(0, 0, 1), 21), math.radians(0), math.radians(180)), False)
sketch16.addGeometry(Part.ArcOfCircle(Part.Circle(Vector(90, -17, 0), Vector(0, 0, 1), 21), math.radians(180), math.radians(360)), False)
sketch16.addGeometry(Part.Circle(Vector(90, -17, 0), Vector(0, 0, 1), 19), False)
sketch16.addGeometry(Part.Circle(Vector(48, -17, 0), Vector(0, 0, 1), 21), False)
sketch16.addGeometry(Part.Circle(Vector(48, -17, 0), Vector(0, 0, 1), 19), False)
sketch16.addGeometry(Part.Circle(Vector(132, -17, 0), Vector(0, 0, 1), 21), False)
sketch16.addGeometry(Part.Circle(Vector(132, -17, 0), Vector(0, 0, 1), 19), False)
sketch16.addConstraint(Sketcher.Constraint("Tangent", 0, 1, 1, 2))
sketch16.addConstraint(Sketcher.Constraint("Coincident", 1, 1, 0, 2))
sketch16.addConstraint(Sketcher.Constraint("Coincident", 2, 3, 0, 3))
sketch16.addConstraint(Sketcher.Constraint("Coincident", 4, 3, 3, 3))
sketch16.addConstraint(Sketcher.Constraint("Coincident", 6, 3, 5, 3))
sketch16.addConstraint(Sketcher.Constraint("Equal", 1, 3))
sketch16.addConstraint(Sketcher.Constraint("Equal", 2, 4))
sketch16.addConstraint(Sketcher.Constraint("Equal", 3, 5))
sketch16.addConstraint(Sketcher.Constraint("Equal", 4, 6))
sketch16.addConstraint(Sketcher.Constraint("Horizontal", 2, 3, 3, 3))
sketch16.addConstraint(Sketcher.Constraint("Horizontal", 4, 3, 5, 3))
sketch16.addConstraint(Sketcher.Constraint("Horizontal", 6, 3, 0, 1))
sketch16.addConstraint(Sketcher.Constraint("Horizontal", 0, 1, 1, 1))
sketch16.addConstraint(Sketcher.Constraint("Diameter", 2, Q("38 mm")))
sketch16.addConstraint(Sketcher.Constraint("Diameter", 3, Q("41.5 mm")))
sketch16.addConstraint(Sketcher.Constraint("DistanceX", 3, 3, 0, 3, Q("41.5 mm")))
sketch16.addConstraint(Sketcher.Constraint("DistanceX", 0, 3, 5, 3, Q("41.5 mm")))
sketch16.addConstraint(Sketcher.Constraint("DistanceX", -1, 1, 0, 3, Q("90 mm")))
sketch16.addConstraint(Sketcher.Constraint("DistanceY", 0, 3, -1, 1, Q("16.75 mm")))
sketch16.setExpression("Constraints[13]", "Params.sketch16_diameter")
sketch16.setExpression("Constraints[14]", "Params.sketch16_diameter2")
pad13 = body.newObject("PartDesign::Pad", "Pad012")
pad13.Profile = sketch16
pad13.setExpression("Length", "Params.pad13_length")
pad13.Reversed = True

sketch17 = body.newObject("Sketcher::SketchObject", "Sketch016")
sketch17.AttachmentSupport = (doc.getObject("XZ_Plane"), [""])
sketch17.MapMode = "FlatFace"
sketch17.AttachmentOffset = App.Placement(Vector(0, 0, -35), App.Rotation())
add_polygon(sketch17, [(20, 6), (20, 20), (160, 20), (160, 6)])
sketch17.addConstraint(Sketcher.Constraint("Vertical", 0))
sketch17.addConstraint(Sketcher.Constraint("Horizontal", 1))
sketch17.addConstraint(Sketcher.Constraint("Vertical", 2))
sketch17.addConstraint(Sketcher.Constraint("Horizontal", 3))
sketch17.addConstraint(Sketcher.Constraint("DistanceX", 1, 1, 1, 2, Q("140 mm")))
sketch17.addConstraint(Sketcher.Constraint("DistanceY", 0, 1, 0, 2, Q("14 mm")))
sketch17.addConstraint(Sketcher.Constraint("DistanceX", -1, 1, 0, 2, Q("20 mm")))
sketch17.addConstraint(Sketcher.Constraint("DistanceY", -1, 1, 0, 2, Q("20.5 mm")))
sketch17.setExpression("Constraints[8]", "Params.sketch17_width")
sketch17.setExpression("Constraints[9]", "Params.sketch17_height")
pocket4 = body.newObject("PartDesign::Pocket", "Pocket003")
pocket4.Profile = sketch17
pocket4.setExpression("Length", "Params.pocket4_length")
pocket4.Reversed = True

doc.recompute()
